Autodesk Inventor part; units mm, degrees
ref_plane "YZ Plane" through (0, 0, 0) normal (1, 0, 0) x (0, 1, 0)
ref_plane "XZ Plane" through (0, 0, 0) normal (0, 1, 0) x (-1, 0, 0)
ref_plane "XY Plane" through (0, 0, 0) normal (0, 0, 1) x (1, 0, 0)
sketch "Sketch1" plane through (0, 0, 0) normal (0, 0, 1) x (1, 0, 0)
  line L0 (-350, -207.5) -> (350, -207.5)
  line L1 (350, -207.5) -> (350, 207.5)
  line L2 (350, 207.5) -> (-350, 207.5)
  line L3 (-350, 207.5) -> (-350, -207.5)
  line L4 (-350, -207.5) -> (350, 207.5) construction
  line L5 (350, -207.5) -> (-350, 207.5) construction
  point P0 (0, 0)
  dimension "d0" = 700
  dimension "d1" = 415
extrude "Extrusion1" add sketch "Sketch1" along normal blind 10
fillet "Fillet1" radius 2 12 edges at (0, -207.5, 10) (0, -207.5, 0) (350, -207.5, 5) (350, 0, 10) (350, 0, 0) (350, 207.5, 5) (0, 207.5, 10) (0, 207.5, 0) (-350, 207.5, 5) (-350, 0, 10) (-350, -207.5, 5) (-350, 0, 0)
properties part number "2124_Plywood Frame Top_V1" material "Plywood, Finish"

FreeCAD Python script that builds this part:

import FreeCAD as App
import Part
import Sketcher

V = App.Vector


def add_polygon(sketch, points):
    """Adds a closed chain of lines whose ends are joined by coincident constraints."""
    first, n = sketch.GeometryCount, len(points)
    for a, b in zip(points, points[1:] + points[:1]):
        sketch.addGeometry(Part.LineSegment(App.Vector(*a, 0), App.Vector(*b, 0)), False)
    for i in range(n):
        sketch.addConstraint(Sketcher.Constraint("Coincident", first + i, 2, first + (i + 1) % n, 1))

doc = App.newDocument("Part")
body = doc.addObject("PartDesign::Body", "Body")

# Sketch on XY plane
sketch1 = body.newObject("Sketcher::SketchObject", "Sketch")
sketch1.AttachmentSupport = (doc.getObject("XY_Plane"), [""])
sketch1.MapMode = "FlatFace"
add_polygon(sketch1, [(-350, 208), (-350, -208), (350, -208), (350, 208)])  # lines 0-3
sketch1.addConstraint(Sketcher.Constraint("Vertical", 0))
sketch1.addConstraint(Sketcher.Constraint("Horizontal", 1))
sketch1.addConstraint(Sketcher.Constraint("Vertical", 2))
sketch1.addConstraint(Sketcher.Constraint("Horizontal", 3))
sketch1.addConstraint(Sketcher.Constraint("Symmetric", 0, 2, 2, 2, -1, 1))
sketch1.addConstraint(Sketcher.Constraint("DistanceX", 1, 1, 1, 2, 700.0))
sketch1.addConstraint(Sketcher.Constraint("DistanceY", 0, 2, 0, 1, 415.0))
pad1 = body.newObject("PartDesign::Pad", "Pad")
pad1.Profile = sketch1
pad1.Length = 10
doc.recompute()

fillet = body.newObject("PartDesign::Fillet", "Fillet")
fillet.Base = (pad1, ["Edge1"])
fillet.UseAllEdges = True
fillet.Radius = 2

doc.recompute()
